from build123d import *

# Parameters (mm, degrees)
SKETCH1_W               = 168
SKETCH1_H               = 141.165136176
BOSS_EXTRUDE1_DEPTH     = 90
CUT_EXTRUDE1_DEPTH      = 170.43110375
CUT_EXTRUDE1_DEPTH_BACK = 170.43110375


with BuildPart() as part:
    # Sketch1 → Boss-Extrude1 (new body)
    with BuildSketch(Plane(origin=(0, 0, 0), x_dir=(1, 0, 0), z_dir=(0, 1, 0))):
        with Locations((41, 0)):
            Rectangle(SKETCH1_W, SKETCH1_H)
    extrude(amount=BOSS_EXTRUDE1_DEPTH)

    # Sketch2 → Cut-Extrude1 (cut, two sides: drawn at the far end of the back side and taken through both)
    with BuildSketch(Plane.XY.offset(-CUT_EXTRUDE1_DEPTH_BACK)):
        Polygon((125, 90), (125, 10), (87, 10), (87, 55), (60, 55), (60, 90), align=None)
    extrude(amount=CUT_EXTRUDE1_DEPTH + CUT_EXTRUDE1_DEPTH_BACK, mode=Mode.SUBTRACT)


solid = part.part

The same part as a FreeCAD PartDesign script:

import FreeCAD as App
import Part
import Sketcher
from FreeCAD import Vector
Q = App.Units.Quantity


def add_polygon(sketch, points):
    """Adds a closed chain of lines whose ends are joined by coincident constraints."""
    first, n = sketch.GeometryCount, len(points)
    for a, b in zip(points, points[1:] + points[:1]):
        sketch.addGeometry(Part.LineSegment(App.Vector(*a, 0), App.Vector(*b, 0)), False)
    for i in range(n):
        sketch.addConstraint(Sketcher.Constraint("Coincident", first + i, 2, first + (i + 1) % n, 1))

doc = App.newDocument("Part")
body = doc.addObject("PartDesign::Body", "Body")

# Sketch on XZ plane
sketch1 = body.newObject("Sketcher::SketchObject", "Sketch")
sketch1.AttachmentSupport = (doc.getObject("XZ_Plane"), [""])
sketch1.MapMode = "FlatFace"
add_polygon(sketch1, [(-43, -71), (-43, 71), (125, 71), (125, -71)])  # lines 0-3
sketch1.addConstraint([
    Sketcher.Constraint("Vertical", 0),
    Sketcher.Constraint("Horizontal", 1),
    Sketcher.Constraint("Vertical", 2),
    Sketcher.Constraint("Horizontal", 3),
    Sketcher.Constraint("DistanceX", 1, 1, 1, 2, Q("168 mm")),
    Sketcher.Constraint("DistanceX", 0, 2, -1, 1, Q("43 mm")),
    Sketcher.Constraint("DistanceY", 0, 1, 0, 2, Q("141.165136 mm")),
    Sketcher.Constraint("DistanceY", -1, 1, 0, 2, Q("70.582568 mm")),
])
pad1 = body.newObject("PartDesign::Pad", "Pad")
pad1.Profile = sketch1
pad1.Length = 90
pad1.Reversed = True

# Sketch on XY plane
sketch2 = body.newObject("Sketcher::SketchObject", "Sketch001")
sketch2.AttachmentSupport = (doc.getObject("XY_Plane"), [""])
sketch2.MapMode = "FlatFace"
add_polygon(sketch2, [(125, 10), (125, 90), (60, 90), (60, 55), (87, 55), (87, 10)])  # lines 0-5
sketch2.addConstraint([
    Sketcher.Constraint("Vertical", 0),
    Sketcher.Constraint("Horizontal", 1),
    Sketcher.Constraint("Vertical", 2),
    Sketcher.Constraint("Horizontal", 3),
    Sketcher.Constraint("Vertical", 4),
    Sketcher.Constraint("Horizontal", 5),
    Sketcher.Constraint("DistanceX", 1, 2, 1, 1, Q("65 mm")),
    Sketcher.Constraint("DistanceX", 3, 1, 3, 2, Q("27 mm")),
    Sketcher.Constraint("DistanceY", 0, 1, 0, 2, Q("80 mm")),
    Sketcher.Constraint("DistanceY", 2, 2, 2, 1, Q("35 mm")),
    Sketcher.Constraint("DistanceX", -1, 1, 0, 2, Q("125 mm")),
    Sketcher.Constraint("DistanceY", -1, 1, 0, 2, Q("90 mm")),
])
pocket1 = body.newObject("PartDesign::Pocket", "Pocket")
pocket1.Profile = sketch2
pocket1.Type = "ThroughAll"
pocket1.Midplane = True

doc.recompute()
